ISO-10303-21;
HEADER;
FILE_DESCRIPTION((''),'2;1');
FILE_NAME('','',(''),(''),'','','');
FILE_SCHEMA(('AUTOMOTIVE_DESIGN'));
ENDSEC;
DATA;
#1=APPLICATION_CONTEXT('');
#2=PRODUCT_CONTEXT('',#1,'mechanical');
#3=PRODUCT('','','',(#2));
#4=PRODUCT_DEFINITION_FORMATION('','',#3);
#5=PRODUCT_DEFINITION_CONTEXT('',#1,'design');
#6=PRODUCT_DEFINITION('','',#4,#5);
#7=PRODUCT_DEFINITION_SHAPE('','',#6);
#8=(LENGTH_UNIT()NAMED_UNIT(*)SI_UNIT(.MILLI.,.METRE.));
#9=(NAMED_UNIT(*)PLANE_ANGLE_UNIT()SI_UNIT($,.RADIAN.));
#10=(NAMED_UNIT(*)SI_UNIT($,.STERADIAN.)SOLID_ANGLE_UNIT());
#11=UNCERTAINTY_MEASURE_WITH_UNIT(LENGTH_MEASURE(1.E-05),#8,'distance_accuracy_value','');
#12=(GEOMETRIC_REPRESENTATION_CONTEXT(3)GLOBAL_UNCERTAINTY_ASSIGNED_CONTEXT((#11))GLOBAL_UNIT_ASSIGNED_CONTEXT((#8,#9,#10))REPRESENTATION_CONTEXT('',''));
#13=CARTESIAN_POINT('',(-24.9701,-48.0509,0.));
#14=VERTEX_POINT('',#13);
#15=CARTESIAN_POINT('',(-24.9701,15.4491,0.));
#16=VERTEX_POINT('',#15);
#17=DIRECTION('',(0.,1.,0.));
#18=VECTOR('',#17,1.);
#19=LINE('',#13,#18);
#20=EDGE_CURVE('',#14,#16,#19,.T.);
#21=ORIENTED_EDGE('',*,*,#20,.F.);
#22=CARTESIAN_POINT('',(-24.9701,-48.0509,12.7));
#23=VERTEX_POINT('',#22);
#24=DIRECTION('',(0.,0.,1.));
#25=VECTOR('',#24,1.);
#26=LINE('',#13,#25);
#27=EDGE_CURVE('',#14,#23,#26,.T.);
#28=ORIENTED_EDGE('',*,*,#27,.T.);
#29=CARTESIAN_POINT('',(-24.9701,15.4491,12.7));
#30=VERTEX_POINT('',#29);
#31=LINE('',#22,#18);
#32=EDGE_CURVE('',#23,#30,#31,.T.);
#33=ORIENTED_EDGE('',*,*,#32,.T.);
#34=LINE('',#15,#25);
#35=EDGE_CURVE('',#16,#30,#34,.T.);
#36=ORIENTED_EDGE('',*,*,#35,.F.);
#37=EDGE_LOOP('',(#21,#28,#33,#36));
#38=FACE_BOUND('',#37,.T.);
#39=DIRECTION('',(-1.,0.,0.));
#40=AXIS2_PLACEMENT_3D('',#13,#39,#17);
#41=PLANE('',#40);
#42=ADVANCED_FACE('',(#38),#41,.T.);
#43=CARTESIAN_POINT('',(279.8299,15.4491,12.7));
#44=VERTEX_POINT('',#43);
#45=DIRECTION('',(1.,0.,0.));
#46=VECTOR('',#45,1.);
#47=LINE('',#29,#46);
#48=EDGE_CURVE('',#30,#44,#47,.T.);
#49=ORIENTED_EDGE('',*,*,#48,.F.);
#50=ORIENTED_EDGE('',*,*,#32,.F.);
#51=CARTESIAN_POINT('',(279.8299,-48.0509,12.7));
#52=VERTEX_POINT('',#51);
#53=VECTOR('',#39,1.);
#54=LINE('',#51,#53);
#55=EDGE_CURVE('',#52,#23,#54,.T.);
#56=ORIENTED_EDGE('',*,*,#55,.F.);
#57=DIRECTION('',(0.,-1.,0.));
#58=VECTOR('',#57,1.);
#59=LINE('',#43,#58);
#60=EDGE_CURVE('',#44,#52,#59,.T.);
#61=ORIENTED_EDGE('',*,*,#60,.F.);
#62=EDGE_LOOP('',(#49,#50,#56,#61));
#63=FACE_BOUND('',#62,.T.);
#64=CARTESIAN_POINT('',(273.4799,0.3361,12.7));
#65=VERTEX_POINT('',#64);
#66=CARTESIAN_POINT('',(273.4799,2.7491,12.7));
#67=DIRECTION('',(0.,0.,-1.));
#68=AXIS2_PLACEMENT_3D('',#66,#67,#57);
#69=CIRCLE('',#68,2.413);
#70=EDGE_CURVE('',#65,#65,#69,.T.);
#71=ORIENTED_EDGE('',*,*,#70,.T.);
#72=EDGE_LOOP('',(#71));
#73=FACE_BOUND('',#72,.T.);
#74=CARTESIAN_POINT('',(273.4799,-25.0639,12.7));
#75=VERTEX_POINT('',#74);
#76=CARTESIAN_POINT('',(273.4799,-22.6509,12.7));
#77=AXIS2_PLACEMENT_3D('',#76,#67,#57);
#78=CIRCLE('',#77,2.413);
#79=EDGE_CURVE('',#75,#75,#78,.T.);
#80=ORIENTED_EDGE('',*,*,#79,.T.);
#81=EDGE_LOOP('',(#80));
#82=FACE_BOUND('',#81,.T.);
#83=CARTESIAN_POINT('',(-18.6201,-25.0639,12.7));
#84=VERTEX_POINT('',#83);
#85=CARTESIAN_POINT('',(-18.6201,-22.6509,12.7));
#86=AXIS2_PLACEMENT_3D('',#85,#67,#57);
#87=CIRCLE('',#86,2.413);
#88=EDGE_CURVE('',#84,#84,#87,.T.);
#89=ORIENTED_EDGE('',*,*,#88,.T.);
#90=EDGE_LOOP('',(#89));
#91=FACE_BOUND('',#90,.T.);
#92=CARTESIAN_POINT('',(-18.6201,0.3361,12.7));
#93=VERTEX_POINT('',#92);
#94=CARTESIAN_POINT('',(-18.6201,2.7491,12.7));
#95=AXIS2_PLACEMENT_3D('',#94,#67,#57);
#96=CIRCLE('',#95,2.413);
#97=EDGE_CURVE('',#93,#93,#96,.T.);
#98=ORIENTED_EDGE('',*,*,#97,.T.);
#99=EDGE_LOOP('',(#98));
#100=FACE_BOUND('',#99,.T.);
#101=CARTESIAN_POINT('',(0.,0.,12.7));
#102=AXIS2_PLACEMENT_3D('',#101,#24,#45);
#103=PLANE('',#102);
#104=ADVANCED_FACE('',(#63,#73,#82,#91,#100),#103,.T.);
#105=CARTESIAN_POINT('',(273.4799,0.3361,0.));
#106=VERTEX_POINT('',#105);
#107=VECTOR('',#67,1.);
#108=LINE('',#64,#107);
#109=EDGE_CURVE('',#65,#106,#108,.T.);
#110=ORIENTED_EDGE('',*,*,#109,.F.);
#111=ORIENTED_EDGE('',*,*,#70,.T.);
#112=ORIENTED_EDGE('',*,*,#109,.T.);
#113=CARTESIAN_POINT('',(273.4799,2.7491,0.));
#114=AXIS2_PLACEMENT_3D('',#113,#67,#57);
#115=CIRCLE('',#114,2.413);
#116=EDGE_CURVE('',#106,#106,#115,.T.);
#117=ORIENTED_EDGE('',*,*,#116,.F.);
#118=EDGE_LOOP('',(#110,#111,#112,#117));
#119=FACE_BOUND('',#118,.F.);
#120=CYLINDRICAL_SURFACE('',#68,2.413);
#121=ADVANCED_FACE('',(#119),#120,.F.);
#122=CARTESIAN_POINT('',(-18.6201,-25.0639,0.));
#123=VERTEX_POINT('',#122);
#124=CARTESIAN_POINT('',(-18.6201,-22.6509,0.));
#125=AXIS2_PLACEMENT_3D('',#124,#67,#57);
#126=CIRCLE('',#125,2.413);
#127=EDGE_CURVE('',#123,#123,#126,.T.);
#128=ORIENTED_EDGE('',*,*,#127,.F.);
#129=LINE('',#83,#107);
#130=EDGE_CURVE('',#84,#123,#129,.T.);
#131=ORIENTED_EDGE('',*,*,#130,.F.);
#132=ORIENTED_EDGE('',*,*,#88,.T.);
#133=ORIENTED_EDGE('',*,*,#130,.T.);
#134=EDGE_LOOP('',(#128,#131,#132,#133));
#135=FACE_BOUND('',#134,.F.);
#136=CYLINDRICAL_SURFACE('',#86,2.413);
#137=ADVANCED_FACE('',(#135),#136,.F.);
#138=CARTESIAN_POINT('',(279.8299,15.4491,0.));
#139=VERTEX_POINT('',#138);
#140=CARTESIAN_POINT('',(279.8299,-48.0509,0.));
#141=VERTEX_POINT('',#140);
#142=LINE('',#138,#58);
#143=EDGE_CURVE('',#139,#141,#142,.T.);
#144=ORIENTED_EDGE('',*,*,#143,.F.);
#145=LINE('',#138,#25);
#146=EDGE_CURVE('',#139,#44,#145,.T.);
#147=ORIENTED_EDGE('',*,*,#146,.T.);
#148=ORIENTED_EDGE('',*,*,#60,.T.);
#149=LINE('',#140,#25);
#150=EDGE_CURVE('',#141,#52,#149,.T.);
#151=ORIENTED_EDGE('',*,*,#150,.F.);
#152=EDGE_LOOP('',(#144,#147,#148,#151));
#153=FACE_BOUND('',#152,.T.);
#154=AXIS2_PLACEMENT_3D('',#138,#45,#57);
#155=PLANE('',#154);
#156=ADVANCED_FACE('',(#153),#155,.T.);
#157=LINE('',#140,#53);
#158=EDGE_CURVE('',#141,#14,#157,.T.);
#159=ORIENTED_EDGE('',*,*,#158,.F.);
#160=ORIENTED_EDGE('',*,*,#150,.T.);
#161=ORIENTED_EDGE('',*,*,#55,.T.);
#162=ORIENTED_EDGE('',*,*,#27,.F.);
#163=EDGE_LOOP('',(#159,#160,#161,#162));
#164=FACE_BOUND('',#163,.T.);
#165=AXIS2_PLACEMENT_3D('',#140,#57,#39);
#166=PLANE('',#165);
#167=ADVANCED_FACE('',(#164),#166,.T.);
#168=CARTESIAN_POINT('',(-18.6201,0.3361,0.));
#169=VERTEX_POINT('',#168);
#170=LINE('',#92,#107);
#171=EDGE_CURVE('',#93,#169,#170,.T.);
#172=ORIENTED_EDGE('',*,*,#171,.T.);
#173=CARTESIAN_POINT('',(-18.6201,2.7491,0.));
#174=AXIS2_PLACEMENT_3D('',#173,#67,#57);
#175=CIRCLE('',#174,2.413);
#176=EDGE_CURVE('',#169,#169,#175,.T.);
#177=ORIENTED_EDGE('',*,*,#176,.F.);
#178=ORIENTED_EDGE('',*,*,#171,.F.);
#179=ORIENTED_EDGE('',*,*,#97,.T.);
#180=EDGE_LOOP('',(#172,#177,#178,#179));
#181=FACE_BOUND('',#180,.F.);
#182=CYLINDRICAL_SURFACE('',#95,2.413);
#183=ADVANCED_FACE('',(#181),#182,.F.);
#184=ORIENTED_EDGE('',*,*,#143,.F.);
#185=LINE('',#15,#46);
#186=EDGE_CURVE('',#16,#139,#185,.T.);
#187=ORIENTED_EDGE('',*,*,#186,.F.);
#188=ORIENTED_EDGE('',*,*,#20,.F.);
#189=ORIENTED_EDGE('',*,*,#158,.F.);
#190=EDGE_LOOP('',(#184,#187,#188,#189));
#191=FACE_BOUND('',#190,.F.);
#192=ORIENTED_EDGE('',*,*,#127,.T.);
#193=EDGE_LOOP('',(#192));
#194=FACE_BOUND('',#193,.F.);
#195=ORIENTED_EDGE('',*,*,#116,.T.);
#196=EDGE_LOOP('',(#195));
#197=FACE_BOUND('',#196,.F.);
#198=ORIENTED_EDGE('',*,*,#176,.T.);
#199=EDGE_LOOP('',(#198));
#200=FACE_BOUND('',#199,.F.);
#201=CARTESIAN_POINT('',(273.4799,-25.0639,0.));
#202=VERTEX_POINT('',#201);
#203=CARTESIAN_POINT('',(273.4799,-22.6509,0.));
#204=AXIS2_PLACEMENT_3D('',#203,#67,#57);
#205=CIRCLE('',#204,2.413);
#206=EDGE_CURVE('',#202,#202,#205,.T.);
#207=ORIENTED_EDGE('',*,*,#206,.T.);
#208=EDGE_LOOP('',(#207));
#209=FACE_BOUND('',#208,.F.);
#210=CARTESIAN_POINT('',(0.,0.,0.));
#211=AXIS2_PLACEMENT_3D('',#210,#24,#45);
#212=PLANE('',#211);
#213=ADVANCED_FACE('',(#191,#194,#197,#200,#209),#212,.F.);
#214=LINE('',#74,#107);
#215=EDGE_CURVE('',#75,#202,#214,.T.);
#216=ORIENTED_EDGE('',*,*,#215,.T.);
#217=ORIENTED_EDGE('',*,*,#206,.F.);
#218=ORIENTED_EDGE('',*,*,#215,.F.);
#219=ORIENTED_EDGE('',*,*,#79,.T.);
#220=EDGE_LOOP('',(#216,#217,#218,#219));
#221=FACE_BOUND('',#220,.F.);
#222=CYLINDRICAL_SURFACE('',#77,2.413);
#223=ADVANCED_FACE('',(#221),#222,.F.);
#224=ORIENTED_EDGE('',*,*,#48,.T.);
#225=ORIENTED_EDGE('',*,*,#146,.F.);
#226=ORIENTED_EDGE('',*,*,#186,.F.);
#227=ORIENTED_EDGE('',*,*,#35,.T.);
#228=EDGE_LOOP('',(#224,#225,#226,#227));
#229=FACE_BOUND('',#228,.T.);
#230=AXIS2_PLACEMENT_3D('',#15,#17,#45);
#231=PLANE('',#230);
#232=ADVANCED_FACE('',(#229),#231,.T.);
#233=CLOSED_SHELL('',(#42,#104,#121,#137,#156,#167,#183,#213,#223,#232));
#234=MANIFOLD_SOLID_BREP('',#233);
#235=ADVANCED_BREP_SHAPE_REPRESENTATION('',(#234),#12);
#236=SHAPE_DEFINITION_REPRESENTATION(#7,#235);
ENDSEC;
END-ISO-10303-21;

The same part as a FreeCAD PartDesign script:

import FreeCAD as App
import Part
import Sketcher
from FreeCAD import Vector
Q = App.Units.Quantity


def add_polygon(sketch, points):
    """Adds a closed chain of lines whose ends are joined by coincident constraints."""
    first, n = sketch.GeometryCount, len(points)
    for a, b in zip(points, points[1:] + points[:1]):
        sketch.addGeometry(Part.LineSegment(App.Vector(*a, 0), App.Vector(*b, 0)), False)
    for i in range(n):
        sketch.addConstraint(Sketcher.Constraint("Coincident", first + i, 2, first + (i + 1) % n, 1))

doc = App.newDocument("Part")
params = doc.addObject("Spreadsheet::Sheet", "Params")
for row, (alias, value) in enumerate([
    ("sketch1_width", "12 in"),
    ("sketch1_height", "2.5 in"),
    ("pad1_length", "0.5 in"),
    ("sketch2_diameter", "0.19 in"),
    ("hole_diameter", "0.19 in"),
    ("sketch3_diameter", "0.19 in"),
    ("hole2_diameter", "0.19 in"),
    ("sketch4_diameter", "0.19 in"),
    ("hole3_diameter", "0.19 in"),
    ("sketch5_diameter", "0.19 in"),
    ("hole4_diameter", "0.19 in"),
], start=1):
    params.set(f"A{row}", alias)
    params.set(f"B{row}", "=" + value)
    params.setAlias(f"B{row}", alias)

body = doc.addObject("PartDesign::Body", "Body")

# Sketch on XY plane
sketch1 = body.newObject("Sketcher::SketchObject", "Sketch")
sketch1.AttachmentSupport = (doc.getObject("XY_Plane"), [""])
sketch1.MapMode = "FlatFace"
add_polygon(sketch1, [(279.8299, 15.4491), (-24.9701, 15.4491), (-24.9701, -48.0509), (279.8299, -48.0509)])  # lines 0-3
sketch1.addConstraint([
    Sketcher.Constraint("Horizontal", 0),
    Sketcher.Constraint("Vertical", 1),
    Sketcher.Constraint("Horizontal", 2),
    Sketcher.Constraint("Vertical", 3),
    Sketcher.Constraint("DistanceX", 0, 2, 0, 1, Q("12 in")),
    Sketcher.Constraint("DistanceY", 1, 2, 1, 1, Q("2.5 in")),
    Sketcher.Constraint("DistanceX", 0, 2, -1, 1, 24.97),
    Sketcher.Constraint("DistanceY", -1, 1, 0, 2, 15.449),
])
sketch1.setExpression("Constraints[8]", "Params.sketch1_width")
sketch1.setExpression("Constraints[9]", "Params.sketch1_height")
pad1 = body.newObject("PartDesign::Pad", "Pad")
pad1.Profile = sketch1
pad1.setExpression("Length", "Params.pad1_length")

# Sketch on XY plane
sketch2 = body.newObject("Sketcher::SketchObject", "Sketch001")
sketch2.AttachmentSupport = (doc.getObject("XY_Plane"), [""])
sketch2.MapMode = "FlatFace"
sketch2.AttachmentOffset = App.Placement(Vector(0, 0, 0.5 * 25.4), App.Rotation())
sketch2.addGeometry(Part.Circle(Vector(-18.6201, 2.7491, 0), Vector(0, 0, 1), 2.413), False)
sketch2.addConstraint([
    Sketcher.Constraint("Diameter", 0, Q("0.19 in")),
    Sketcher.Constraint("DistanceX", 0, 3, -1, 1, 18.62),
    Sketcher.Constraint("DistanceY", -1, 1, 0, 3, 2.749),
])
sketch2.setExpression("Constraints[0]", "Params.sketch2_diameter")
doc.recompute()
hole = body.newObject("PartDesign::Hole", "Hole")
hole.Profile = sketch2
hole.ThreadType = "None"
hole.setExpression("Diameter", "Params.hole_diameter")
hole.DepthType = "ThroughAll"

# Sketch on XY plane
sketch3 = body.newObject("Sketcher::SketchObject", "Sketch002")
sketch3.AttachmentSupport = (doc.getObject("XY_Plane"), [""])
sketch3.MapMode = "FlatFace"
sketch3.AttachmentOffset = App.Placement(Vector(0, 0, 0.5 * 25.4), App.Rotation())
sketch3.addGeometry(Part.Circle(Vector(-18.6201, -22.6509, 0), Vector(0, 0, 1), 2.413), False)
sketch3.addConstraint([
    Sketcher.Constraint("Diameter", 0, Q("0.19 in")),
    Sketcher.Constraint("DistanceX", 0, 3, -1, 1, 18.62),
    Sketcher.Constraint("DistanceY", 0, 3, -1, 1, 22.651),
])
sketch3.setExpression("Constraints[0]", "Params.sketch3_diameter")
doc.recompute()
hole2 = body.newObject("PartDesign::Hole", "Hole001")
hole2.Profile = sketch3
hole2.ThreadType = "None"
hole2.setExpression("Diameter", "Params.hole2_diameter")
hole2.DepthType = "ThroughAll"

# Sketch on XY plane
sketch4 = body.newObject("Sketcher::SketchObject", "Sketch003")
sketch4.AttachmentSupport = (doc.getObject("XY_Plane"), [""])
sketch4.MapMode = "FlatFace"
sketch4.AttachmentOffset = App.Placement(Vector(0, 0, 0.5 * 25.4), App.Rotation())
sketch4.addGeometry(Part.Circle(Vector(273.4799, 2.7491, 0), Vector(0, 0, 1), 2.413), False)
sketch4.addConstraint([
    Sketcher.Constraint("Diameter", 0, Q("0.19 in")),
    Sketcher.Constraint("DistanceX", -1, 1, 0, 3, 273.48),
    Sketcher.Constraint("DistanceY", -1, 1, 0, 3, 2.749),
])
sketch4.setExpression("Constraints[0]", "Params.sketch4_diameter")
doc.recompute()
hole3 = body.newObject("PartDesign::Hole", "Hole002")
hole3.Profile = sketch4
hole3.ThreadType = "None"
hole3.setExpression("Diameter", "Params.hole3_diameter")
hole3.DepthType = "ThroughAll"

# Sketch on XY plane
sketch5 = body.newObject("Sketcher::SketchObject", "Sketch004")
sketch5.AttachmentSupport = (doc.getObject("XY_Plane"), [""])
sketch5.MapMode = "FlatFace"
sketch5.AttachmentOffset = App.Placement(Vector(0, 0, 0.5 * 25.4), App.Rotation())
sketch5.addGeometry(Part.Circle(Vector(273.4799, -22.6509, 0), Vector(0, 0, 1), 2.413), False)
sketch5.addConstraint([
    Sketcher.Constraint("Diameter", 0, Q("0.19 in")),
    Sketcher.Constraint("DistanceX", -1, 1, 0, 3, 273.48),
    Sketcher.Constraint("DistanceY", 0, 3, -1, 1, 22.651),
])
sketch5.setExpression("Constraints[0]", "Params.sketch5_diameter")
doc.recompute()
hole4 = body.newObject("PartDesign::Hole", "Hole003")
hole4.Profile = sketch5
hole4.ThreadType = "None"
hole4.setExpression("Diameter", "Params.hole4_diameter")
hole4.DepthType = "ThroughAll"

doc.recompute()
